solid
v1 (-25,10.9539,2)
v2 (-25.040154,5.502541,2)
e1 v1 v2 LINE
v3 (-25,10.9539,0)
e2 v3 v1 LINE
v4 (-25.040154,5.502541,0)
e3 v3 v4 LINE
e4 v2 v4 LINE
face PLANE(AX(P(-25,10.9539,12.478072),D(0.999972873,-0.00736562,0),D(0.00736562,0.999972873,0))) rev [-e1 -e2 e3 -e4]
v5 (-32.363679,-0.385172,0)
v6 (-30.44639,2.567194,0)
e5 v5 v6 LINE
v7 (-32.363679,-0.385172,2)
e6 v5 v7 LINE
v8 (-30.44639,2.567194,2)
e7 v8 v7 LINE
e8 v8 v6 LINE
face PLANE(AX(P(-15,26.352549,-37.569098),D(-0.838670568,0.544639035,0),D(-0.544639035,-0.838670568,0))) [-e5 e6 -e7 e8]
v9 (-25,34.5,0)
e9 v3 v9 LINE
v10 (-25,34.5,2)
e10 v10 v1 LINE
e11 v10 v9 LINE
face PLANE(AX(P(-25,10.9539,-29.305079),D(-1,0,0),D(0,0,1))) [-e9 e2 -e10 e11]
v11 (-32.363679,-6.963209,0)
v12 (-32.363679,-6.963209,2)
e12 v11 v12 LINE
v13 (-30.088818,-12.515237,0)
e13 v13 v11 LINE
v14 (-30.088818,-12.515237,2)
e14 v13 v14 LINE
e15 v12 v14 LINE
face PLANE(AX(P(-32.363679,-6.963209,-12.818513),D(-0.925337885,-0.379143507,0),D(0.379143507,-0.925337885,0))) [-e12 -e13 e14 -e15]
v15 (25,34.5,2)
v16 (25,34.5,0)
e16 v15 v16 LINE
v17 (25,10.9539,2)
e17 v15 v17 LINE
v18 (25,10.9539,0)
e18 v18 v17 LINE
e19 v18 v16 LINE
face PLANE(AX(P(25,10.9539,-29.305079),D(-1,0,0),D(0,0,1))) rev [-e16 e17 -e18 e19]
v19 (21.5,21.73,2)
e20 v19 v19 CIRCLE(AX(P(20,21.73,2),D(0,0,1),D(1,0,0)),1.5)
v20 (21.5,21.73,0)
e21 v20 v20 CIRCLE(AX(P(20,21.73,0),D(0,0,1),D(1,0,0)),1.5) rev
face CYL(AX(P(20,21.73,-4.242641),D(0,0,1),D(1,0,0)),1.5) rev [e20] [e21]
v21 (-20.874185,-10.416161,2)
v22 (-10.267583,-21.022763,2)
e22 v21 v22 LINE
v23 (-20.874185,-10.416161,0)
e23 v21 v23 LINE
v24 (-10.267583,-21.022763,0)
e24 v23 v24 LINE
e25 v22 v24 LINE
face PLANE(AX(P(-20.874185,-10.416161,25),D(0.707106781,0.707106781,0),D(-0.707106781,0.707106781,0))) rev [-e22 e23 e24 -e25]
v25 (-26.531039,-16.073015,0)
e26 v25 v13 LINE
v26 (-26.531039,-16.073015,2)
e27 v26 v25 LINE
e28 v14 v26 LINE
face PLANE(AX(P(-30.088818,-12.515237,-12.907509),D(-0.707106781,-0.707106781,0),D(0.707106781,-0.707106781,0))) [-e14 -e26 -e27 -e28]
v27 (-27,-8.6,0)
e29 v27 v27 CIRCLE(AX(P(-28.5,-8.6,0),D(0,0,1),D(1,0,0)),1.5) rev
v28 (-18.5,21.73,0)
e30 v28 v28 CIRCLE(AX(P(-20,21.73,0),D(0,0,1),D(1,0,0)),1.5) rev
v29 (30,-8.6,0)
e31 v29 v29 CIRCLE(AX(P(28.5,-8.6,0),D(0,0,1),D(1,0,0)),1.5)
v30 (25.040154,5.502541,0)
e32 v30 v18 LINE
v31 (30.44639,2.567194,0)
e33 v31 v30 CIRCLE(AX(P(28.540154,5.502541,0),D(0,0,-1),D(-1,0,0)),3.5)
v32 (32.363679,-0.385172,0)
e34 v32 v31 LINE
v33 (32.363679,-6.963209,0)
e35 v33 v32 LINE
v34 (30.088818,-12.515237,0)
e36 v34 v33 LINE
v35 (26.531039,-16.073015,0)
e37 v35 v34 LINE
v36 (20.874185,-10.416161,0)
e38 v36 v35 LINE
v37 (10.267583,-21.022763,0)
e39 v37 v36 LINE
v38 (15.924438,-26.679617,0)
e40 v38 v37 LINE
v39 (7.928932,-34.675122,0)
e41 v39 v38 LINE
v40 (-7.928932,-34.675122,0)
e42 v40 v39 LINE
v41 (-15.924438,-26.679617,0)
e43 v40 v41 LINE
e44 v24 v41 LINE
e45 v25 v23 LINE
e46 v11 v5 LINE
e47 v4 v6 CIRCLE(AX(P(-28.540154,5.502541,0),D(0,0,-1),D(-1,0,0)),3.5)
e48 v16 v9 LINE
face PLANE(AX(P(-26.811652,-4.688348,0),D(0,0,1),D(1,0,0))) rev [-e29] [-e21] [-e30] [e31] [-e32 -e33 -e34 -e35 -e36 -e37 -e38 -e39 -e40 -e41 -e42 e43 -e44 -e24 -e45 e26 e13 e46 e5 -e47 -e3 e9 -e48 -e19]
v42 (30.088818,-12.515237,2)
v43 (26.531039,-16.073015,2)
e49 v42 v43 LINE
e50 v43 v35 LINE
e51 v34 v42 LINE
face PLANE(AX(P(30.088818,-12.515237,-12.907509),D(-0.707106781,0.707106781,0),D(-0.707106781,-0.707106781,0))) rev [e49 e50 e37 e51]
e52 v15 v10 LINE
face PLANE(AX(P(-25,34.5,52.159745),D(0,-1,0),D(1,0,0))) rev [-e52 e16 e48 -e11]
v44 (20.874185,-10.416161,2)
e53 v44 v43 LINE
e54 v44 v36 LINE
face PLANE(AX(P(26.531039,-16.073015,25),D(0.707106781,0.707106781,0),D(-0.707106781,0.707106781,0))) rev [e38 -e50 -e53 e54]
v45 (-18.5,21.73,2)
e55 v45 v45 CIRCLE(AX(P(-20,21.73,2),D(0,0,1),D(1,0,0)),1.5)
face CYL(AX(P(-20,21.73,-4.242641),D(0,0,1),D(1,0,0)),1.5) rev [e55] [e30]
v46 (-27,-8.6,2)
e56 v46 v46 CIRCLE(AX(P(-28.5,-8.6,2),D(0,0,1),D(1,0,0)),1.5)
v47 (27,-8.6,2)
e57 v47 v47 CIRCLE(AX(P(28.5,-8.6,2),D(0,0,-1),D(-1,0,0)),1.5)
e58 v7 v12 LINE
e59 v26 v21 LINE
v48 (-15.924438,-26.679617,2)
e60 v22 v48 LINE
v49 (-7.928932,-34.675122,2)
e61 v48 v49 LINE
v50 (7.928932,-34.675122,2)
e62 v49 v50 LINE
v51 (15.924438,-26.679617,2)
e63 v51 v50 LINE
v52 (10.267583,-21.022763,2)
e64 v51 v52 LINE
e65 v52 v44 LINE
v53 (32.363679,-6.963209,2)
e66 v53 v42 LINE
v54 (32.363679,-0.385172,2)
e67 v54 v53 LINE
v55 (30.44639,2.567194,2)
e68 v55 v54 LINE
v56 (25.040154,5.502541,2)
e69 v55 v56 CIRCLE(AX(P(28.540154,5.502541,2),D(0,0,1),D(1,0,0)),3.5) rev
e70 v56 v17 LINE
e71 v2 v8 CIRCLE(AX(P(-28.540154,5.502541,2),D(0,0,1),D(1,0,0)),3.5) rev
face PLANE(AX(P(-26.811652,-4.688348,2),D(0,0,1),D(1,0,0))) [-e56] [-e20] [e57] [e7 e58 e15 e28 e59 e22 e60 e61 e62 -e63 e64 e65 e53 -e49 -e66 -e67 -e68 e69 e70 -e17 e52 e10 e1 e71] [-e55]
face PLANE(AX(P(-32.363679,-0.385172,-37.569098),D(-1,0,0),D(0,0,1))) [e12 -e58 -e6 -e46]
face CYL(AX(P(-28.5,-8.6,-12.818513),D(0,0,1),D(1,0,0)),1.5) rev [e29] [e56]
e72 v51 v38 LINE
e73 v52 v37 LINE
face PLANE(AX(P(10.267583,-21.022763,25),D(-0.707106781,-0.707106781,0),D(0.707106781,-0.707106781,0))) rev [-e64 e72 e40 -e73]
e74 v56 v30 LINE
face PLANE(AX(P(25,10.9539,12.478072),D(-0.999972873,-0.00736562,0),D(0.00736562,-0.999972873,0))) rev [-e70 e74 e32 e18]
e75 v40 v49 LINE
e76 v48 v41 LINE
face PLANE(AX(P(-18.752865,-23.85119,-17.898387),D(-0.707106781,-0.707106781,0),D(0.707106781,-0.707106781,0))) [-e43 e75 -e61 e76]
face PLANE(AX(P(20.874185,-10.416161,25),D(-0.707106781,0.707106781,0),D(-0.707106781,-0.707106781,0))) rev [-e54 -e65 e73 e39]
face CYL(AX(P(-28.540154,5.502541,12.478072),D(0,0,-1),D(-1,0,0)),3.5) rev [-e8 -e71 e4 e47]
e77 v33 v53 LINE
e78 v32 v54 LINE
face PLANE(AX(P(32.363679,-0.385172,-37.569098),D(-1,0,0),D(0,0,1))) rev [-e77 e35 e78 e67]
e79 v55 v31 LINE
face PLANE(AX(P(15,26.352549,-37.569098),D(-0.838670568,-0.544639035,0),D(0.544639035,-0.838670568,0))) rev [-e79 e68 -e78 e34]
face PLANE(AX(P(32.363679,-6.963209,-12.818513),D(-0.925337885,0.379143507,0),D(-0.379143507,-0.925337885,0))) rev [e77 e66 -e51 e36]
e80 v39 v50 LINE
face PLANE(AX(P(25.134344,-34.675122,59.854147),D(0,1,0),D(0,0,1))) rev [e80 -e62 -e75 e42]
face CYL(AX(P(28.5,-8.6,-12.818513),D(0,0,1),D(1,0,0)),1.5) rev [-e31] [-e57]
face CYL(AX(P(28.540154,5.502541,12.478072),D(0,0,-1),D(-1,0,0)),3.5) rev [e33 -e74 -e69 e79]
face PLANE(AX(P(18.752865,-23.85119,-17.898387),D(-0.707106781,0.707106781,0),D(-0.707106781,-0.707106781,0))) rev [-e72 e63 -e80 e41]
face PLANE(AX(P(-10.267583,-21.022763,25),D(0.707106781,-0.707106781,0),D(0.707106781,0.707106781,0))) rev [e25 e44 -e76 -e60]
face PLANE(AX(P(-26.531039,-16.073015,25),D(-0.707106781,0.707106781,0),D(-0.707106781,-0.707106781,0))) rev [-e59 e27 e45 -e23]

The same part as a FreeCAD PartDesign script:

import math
import FreeCAD as App
import Part
import Sketcher
Q = App.Units.Quantity


def edges_at(feature, points):
    """Names of the edges that pass closest to the given points."""
    edges = feature.Shape.Edges
    near = lambda p: min(range(len(edges)), key=lambda i: edges[i].distToShape(Part.Vertex(*p))[0])
    return sorted({f"Edge{near(p) + 1}" for p in points})

doc = App.newDocument("Part")
params = doc.addObject("Spreadsheet::Sheet", "Params")
for row, (alias, value) in enumerate([
    ("sketch1_width", "30 mm"),
    ("sketch1_height", "25 mm"),
    ("sketch1_height2", "10 mm"),
    ("sketch1_height3", "19 mm"),
    ("sketch1_length", "10 mm"),
    ("pad1_length", "2 mm"),
    ("sketch2_diameter", "3 mm"),
    ("sketch2_length", "6 mm"),
    ("pad2_length", "2 mm"),
    ("sketch3_width", "36 mm"),
    ("pad3_length", "2 mm"),
    ("fillet_radius", "3 mm"),
    ("sketch4_diameter", "3 mm"),
    ("pocket1_length", "2 mm"),
    ("sketch5_length", "6 mm"),
    ("pad4_length", "2 mm"),
    ("pad5_length", "2 mm"),
    ("sketch7_length", "7 mm"),
    ("pad6_length", "2 mm"),
    ("sketch8_length", "10 mm"),
    ("pad7_length", "2 mm"),
    ("sketch9_width", "10 mm"),
    ("pad8_length", "2 mm"),
    ("pocket2_length", "2 mm"),
    ("sketch11_diameter", "3 mm"),
    ("pocket3_length", "2 mm"),
    ("sketch12_length", "8 mm"),
    ("sketch12_length2", "15 mm"),
    ("pocket4_length", "2 mm"),
    ("sketch13_radius", "3.5 mm"),
    ("sketch13_length", "10 mm"),
    ("pocket5_length", "2 mm"),
    ("sketch14_width", "50 mm"),
    ("sketch14_height", "4 mm"),
    ("pocket6_length", "2 mm"),
], start=1):
    params.set(f"A{row}", alias)
    params.set(f"B{row}", "=" + value)
    params.setAlias(f"B{row}", alias)

body = doc.addObject("PartDesign::Body", "Body")

sketch1 = doc.addObject("Sketcher::SketchObject", "Sketch")
body.addObject(sketch1)
sketch1.AttachmentSupport = (doc.XY_Plane, [""])
sketch1.MapMode = "FlatFace"
sketch1.addGeometry([
    Part.LineSegment(App.Vector(-15, 38, 0), App.Vector(-15, 14, 0)),
    Part.LineSegment(App.Vector(-15, 14, 0), App.Vector(-27, -5, 0)),
    Part.LineSegment(App.Vector(-27, -5, 0), App.Vector(-15, -16, 0)),
    Part.LineSegment(App.Vector(-15, -16, 0), App.Vector(-15, -26, 0)),
    Part.LineSegment(App.Vector(-15, -26, 0), App.Vector(-8, -34, 0)),
    Part.LineSegment(App.Vector(-8, -34, 0), App.Vector(-8, -53, 0)),
    Part.LineSegment(App.Vector(-8, -53, 0), App.Vector(8, -53, 0)),
    Part.LineSegment(App.Vector(8, -53, 0), App.Vector(8, -34, 0)),
    Part.LineSegment(App.Vector(8, -34, 0), App.Vector(15, -26, 0)),
    Part.LineSegment(App.Vector(15, -26, 0), App.Vector(15, -16, 0)),
    Part.LineSegment(App.Vector(15, -16, 0), App.Vector(27, -5, 0)),
    Part.LineSegment(App.Vector(27, -5, 0), App.Vector(15, 14, 0)),
    Part.LineSegment(App.Vector(15, 14, 0), App.Vector(15, 38, 0)),
    Part.LineSegment(App.Vector(15, 38, 0), App.Vector(-15, 38, 0)),
], False)
sketch1.addConstraint([
    Sketcher.Constraint("Coincident", 0, 2, 1, 1),
    Sketcher.Constraint("Coincident", 1, 2, 2, 1),
    Sketcher.Constraint("Coincident", 2, 2, 3, 1),
    Sketcher.Constraint("Coincident", 3, 2, 4, 1),
    Sketcher.Constraint("Coincident", 4, 2, 5, 1),
    Sketcher.Constraint("Coincident", 5, 2, 6, 1),
    Sketcher.Constraint("Coincident", 6, 2, 7, 1),
    Sketcher.Constraint("Coincident", 7, 2, 8, 1),
    Sketcher.Constraint("Coincident", 8, 2, 9, 1),
    Sketcher.Constraint("Coincident", 9, 2, 10, 1),
    Sketcher.Constraint("Coincident", 10, 2, 11, 1),
    Sketcher.Constraint("Coincident", 11, 2, 12, 1),
    Sketcher.Constraint("Coincident", 12, 2, 13, 1),
    Sketcher.Constraint("Coincident", 13, 2, 0, 1),
    Sketcher.Constraint("Vertical", 0),
    Sketcher.Constraint("Vertical", 3),
    Sketcher.Constraint("Vertical", 5),
    Sketcher.Constraint("Horizontal", 6),
    Sketcher.Constraint("Vertical", 7),
    Sketcher.Constraint("Vertical", 9),
    Sketcher.Constraint("Vertical", 12),
    Sketcher.Constraint("Horizontal", 13),
    Sketcher.Constraint("Symmetric", 4, 2, 7, 2, -2),
    Sketcher.Constraint("Symmetric", 3, 2, 8, 2, -2),
    Sketcher.Constraint("Symmetric", 1, 2, 10, 2, -2),
    Sketcher.Constraint("Symmetric", 0, 2, 11, 2, -2),
    Sketcher.Constraint("Parallel", 2, 4),
    Sketcher.Constraint("Perpendicular", 4, 8),
    Sketcher.Constraint("Parallel", 8, 10),
    Sketcher.Constraint("Vertical", 0, 2, 2, 2),
    Sketcher.Constraint("DistanceX", 13, 2, 13, 1, 30.0),
    Sketcher.Constraint("DistanceY", 0, 2, 0, 1, 25.0),
    Sketcher.Constraint("DistanceY", 3, 2, 3, 1, 10.0),
    Sketcher.Constraint("DistanceY", 5, 2, 5, 1, 19.0),
    Sketcher.Constraint("Angle", 1, Q("-123 deg")),
    Sketcher.Constraint("Distance", 4, 10.0),
    Sketcher.Constraint("DistanceY", 2, 2, 0, 2, 30.0),
    Sketcher.Constraint("DistanceY", -1, 1, 0, 2, 13.5),
])
sketch1.setExpression("Constraints[30]", "Params.sketch1_width")
sketch1.setExpression("Constraints[31]", "Params.sketch1_height")
sketch1.setExpression("Constraints[32]", "Params.sketch1_height2")
sketch1.setExpression("Constraints[33]", "Params.sketch1_height3")
sketch1.setExpression("Constraints[35]", "Params.sketch1_length")
pad1 = doc.addObject("PartDesign::Pad", "Pad")
body.addObject(pad1)
pad1.Profile = sketch1
pad1.setExpression("Length", "Params.pad1_length")

sketch2 = doc.addObject("Sketcher::SketchObject", "Sketch001")
body.addObject(sketch2)
sketch2.AttachmentSupport = (doc.XY_Plane, [""])
sketch2.MapMode = "FlatFace"
sketch2.AttachmentOffset = App.Placement(App.Vector(0, 0, 2), App.Rotation())
sketch2.addGeometry([
    Part.LineSegment(App.Vector(-26.8, -4.7, 0), App.Vector(-32.4, -7, 0)),
    Part.LineSegment(App.Vector(-32.4, -7, 0), App.Vector(-30.1, -12.5, 0)),
    Part.LineSegment(App.Vector(-30.1, -12.5, 0), App.Vector(-22.2, -9.3, 0)),
    Part.LineSegment(App.Vector(-22.2, -9.3, 0), App.Vector(-26.8, -4.7, 0)),
    Part.Circle(App.Vector(-28.5, -8.6, 0), App.Vector(0, 0, 1), 1.5),
], False)
sketch2.addConstraint([
    Sketcher.Constraint("Coincident", 0, 2, 1, 1),
    Sketcher.Constraint("Coincident", 1, 2, 2, 1),
    Sketcher.Constraint("Coincident", 2, 2, 3, 1),
    Sketcher.Constraint("Coincident", 3, 2, 0, 1),
    Sketcher.Constraint("Perpendicular", 0, 1),
    Sketcher.Constraint("Perpendicular", 1, 2),
    Sketcher.Constraint("Equal", 0, 1),
    Sketcher.Constraint("Diameter", 4, 3.0),
    Sketcher.Constraint("Angle", 3, Q("135 deg")),
    Sketcher.Constraint("Distance", 0, 6.0),
    Sketcher.Constraint("DistanceX", 4, 3, -1, 1, 28.5),
    Sketcher.Constraint("DistanceY", 4, 3, -1, 1, 8.6),
    Sketcher.Constraint("DistanceX", 0, 2, -1, 1, 32.363679),
    Sketcher.Constraint("DistanceY", 0, 2, -1, 1, 6.963209),
    Sketcher.Constraint("DistanceX", 3, 2, -1, 1, 26.811652),
])
sketch2.setExpression("Constraints[7]", "Params.sketch2_diameter")
sketch2.setExpression("Constraints[9]", "Params.sketch2_length")
pad2 = doc.addObject("PartDesign::Pad", "Pad001")
body.addObject(pad2)
pad2.Profile = sketch2
pad2.setExpression("Length", "Params.pad2_length")
pad2.Reversed = True
doc.recompute()

mirrored = doc.addObject("PartDesign::Mirrored", "Mirrored")
body.addObject(mirrored)
mirrored.Originals = [pad2]
mirrored.MirrorPlane = (doc.YZ_Plane, [""])
body.Tip = mirrored

sketch3 = doc.addObject("Sketcher::SketchObject", "Sketch002")
body.addObject(sketch3)
sketch3.AttachmentSupport = (doc.XY_Plane, [""])
sketch3.MapMode = "FlatFace"
sketch3.AttachmentOffset = App.Placement(App.Vector(0, 0, 2), App.Rotation())
sketch3.addGeometry([
    Part.LineSegment(App.Vector(-8, -45, 0), App.Vector(-18, -55, 0)),
    Part.LineSegment(App.Vector(-18, -55, 0), App.Vector(18, -55, 0)),
    Part.LineSegment(App.Vector(18, -55, 0), App.Vector(8, -45, 0)),
    Part.LineSegment(App.Vector(8, -45, 0), App.Vector(-8, -45, 0)),
], False)
sketch3.addConstraint([
    Sketcher.Constraint("Coincident", 0, 2, 1, 1),
    Sketcher.Constraint("Coincident", 1, 2, 2, 1),
    Sketcher.Constraint("Coincident", 2, 2, 3, 1),
    Sketcher.Constraint("Coincident", 3, 2, 0, 1),
    Sketcher.Constraint("Horizontal", 1),
    Sketcher.Constraint("Horizontal", 3),
    Sketcher.Constraint("Perpendicular", 0, 2),
    Sketcher.Constraint("Equal", 0, 2),
    Sketcher.Constraint("DistanceX", 1, 1, 1, 2, 36.0),
    Sketcher.Constraint("DistanceX", 0, 2, -1, 1, 18.0),
    Sketcher.Constraint("Distance", 0, 14.242641),
    Sketcher.Constraint("DistanceY", 0, 2, -1, 1, 54.642136),
])
sketch3.setExpression("Constraints[8]", "Params.sketch3_width")
pad3 = doc.addObject("PartDesign::Pad", "Pad002")
body.addObject(pad3)
pad3.Profile = sketch3
pad3.setExpression("Length", "Params.pad3_length")
pad3.Reversed = True
doc.recompute()

fillet = doc.addObject("PartDesign::Fillet", "Fillet")
body.addObject(fillet)
fillet.Base = (pad3, edges_at(pad3, [(18, -54.642, 1), (-18, -54.642, 1)]))
fillet.setExpression("Radius", "Params.fillet_radius")

sketch4 = doc.addObject("Sketcher::SketchObject", "Sketch003")
body.addObject(sketch4)
sketch4.AttachmentSupport = (doc.XY_Plane, [""])
sketch4.MapMode = "FlatFace"
sketch4.AttachmentOffset = App.Placement(App.Vector(0, 0, 2), App.Rotation())
sketch4.addGeometry(Part.Circle(App.Vector(-11, -52, 0), App.Vector(0, 0, 1), 1.5), False)
sketch4.addConstraint([
    Sketcher.Constraint("Diameter", 0, 3.0),
    Sketcher.Constraint("DistanceX", 0, 3, -1, 1, 11.0),
    Sketcher.Constraint("DistanceY", 0, 3, -1, 1, 52.002136),
])
sketch4.setExpression("Constraints[0]", "Params.sketch4_diameter")
pocket1 = doc.addObject("PartDesign::Pocket", "Pocket")
body.addObject(pocket1)
pocket1.Profile = sketch4
pocket1.setExpression("Length", "Params.pocket1_length")
doc.recompute()

mirrored2 = doc.addObject("PartDesign::Mirrored", "Mirrored001")
body.addObject(mirrored2)
mirrored2.Originals = [pocket1]
mirrored2.MirrorPlane = (doc.YZ_Plane, [""])
body.Tip = mirrored2

sketch5 = doc.addObject("Sketcher::SketchObject", "Sketch004")
body.addObject(sketch5)
sketch5.AttachmentSupport = (doc.XY_Plane, [""])
sketch5.MapMode = "FlatFace"
sketch5.AttachmentOffset = App.Placement(App.Vector(0, 0, 2), App.Rotation())
sketch5.addGeometry([
    Part.LineSegment(App.Vector(-32, -7, 0), App.Vector(-27, -5, 0)),
    Part.LineSegment(App.Vector(-27, -5, 0), App.Vector(-15, 14, 0)),
    Part.LineSegment(App.Vector(-15, 14, 0), App.Vector(-15, 26, 0)),
    Part.LineSegment(App.Vector(-15, 26, 0), App.Vector(-32, 0, 0)),
    Part.LineSegment(App.Vector(-32, 0, 0), App.Vector(-32, -7, 0)),
], False)
sketch5.addConstraint([
    Sketcher.Constraint("Coincident", 0, 2, 1, 1),
    Sketcher.Constraint("Coincident", 1, 2, 2, 1),
    Sketcher.Constraint("Coincident", 2, 2, 3, 1),
    Sketcher.Constraint("Coincident", 3, 2, 4, 1),
    Sketcher.Constraint("Coincident", 4, 2, 0, 1),
    Sketcher.Constraint("Vertical", 2),
    Sketcher.Constraint("Vertical", 4),
    Sketcher.Constraint("Parallel", 1, 3),
    Sketcher.Constraint("Angle", 1, Q("57 deg")),
    Sketcher.Constraint("Distance", 0, 6.0),
    Sketcher.Constraint("DistanceX", 1, 2, -1, 1, 15.0),
    Sketcher.Constraint("DistanceY", -1, 1, 1, 2, 13.5),
    Sketcher.Constraint("DistanceY", 2, 1, 2, 2, 12.852549),
    Sketcher.Constraint("Distance", 1, 21.687119),
    Sketcher.Constraint("DistanceY", 4, 2, 4, 1, 6.578038),
])
sketch5.setExpression("Constraints[9]", "Params.sketch5_length")
pad4 = doc.addObject("PartDesign::Pad", "Pad003")
body.addObject(pad4)
pad4.Profile = sketch5
pad4.setExpression("Length", "Params.pad4_length")
pad4.Reversed = True

sketch6 = doc.addObject("Sketcher::SketchObject", "Sketch005")
body.addObject(sketch6)
sketch6.AttachmentSupport = (doc.XY_Plane, [""])
sketch6.MapMode = "FlatFace"
sketch6.AttachmentOffset = App.Placement(App.Vector(0, 0, 2), App.Rotation())
sketch6.addGeometry([
    Part.LineSegment(App.Vector(-22.2, -9.3, 0), App.Vector(-25.2, -10.5, 0)),
    Part.LineSegment(App.Vector(-25.2, -10.5, 0), App.Vector(-15, -20.7, 0)),
    Part.LineSegment(App.Vector(-15, -20.7, 0), App.Vector(-15, -16.5, 0)),
    Part.LineSegment(App.Vector(-15, -16.5, 0), App.Vector(-22.2, -9.3, 0)),
], False)
sketch6.addConstraint([
    Sketcher.Constraint("Coincident", 0, 2, 1, 1),
    Sketcher.Constraint("Coincident", 1, 2, 2, 1),
    Sketcher.Constraint("Coincident", 2, 2, 3, 1),
    Sketcher.Constraint("Coincident", 3, 2, 0, 1),
    Sketcher.Constraint("Vertical", 2),
    Sketcher.Constraint("Parallel", 1, 3),
    Sketcher.Constraint("Angle", 1, Q("-45 deg")),
    Sketcher.Constraint("DistanceX", 1, 2, -1, 1, 15.0),
    Sketcher.Constraint("DistanceY", 2, 2, -1, 1, 16.5),
    Sketcher.Constraint("Distance", 1, 14.4556),
    Sketcher.Constraint("DistanceY", 2, 1, 2, 2, 4.242641),
    Sketcher.Constraint("Distance", 0, 3.252358),
])
pad5 = doc.addObject("PartDesign::Pad", "Pad004")
body.addObject(pad5)
pad5.Profile = sketch6
pad5.setExpression("Length", "Params.pad5_length")
pad5.Reversed = True

sketch7 = doc.addObject("Sketcher::SketchObject", "Sketch006")
body.addObject(sketch7)
sketch7.AttachmentSupport = (doc.XY_Plane, [""])
sketch7.MapMode = "FlatFace"
sketch7.AttachmentOffset = App.Placement(App.Vector(0, 0, 2), App.Rotation())
sketch7.addGeometry([
    Part.LineSegment(App.Vector(-25.2, -10.5, 0), App.Vector(-30.1, -12.5, 0)),
    Part.LineSegment(App.Vector(-30.1, -12.5, 0), App.Vector(-23.7, -18.9, 0)),
    Part.LineSegment(App.Vector(-23.7, -18.9, 0), App.Vector(-20.3, -15.5, 0)),
    Part.LineSegment(App.Vector(-20.3, -15.5, 0), App.Vector(-25.2, -10.5, 0)),
], False)
sketch7.addConstraint([
    Sketcher.Constraint("Coincident", 0, 2, 1, 1),
    Sketcher.Constraint("Coincident", 1, 2, 2, 1),
    Sketcher.Constraint("Coincident", 2, 2, 3, 1),
    Sketcher.Constraint("Coincident", 3, 2, 0, 1),
    Sketcher.Constraint("Perpendicular", 1, 2),
    Sketcher.Constraint("Perpendicular", 2, 3),
    Sketcher.Constraint("Angle", 1, Q("-45 deg")),
    Sketcher.Constraint("Distance", 3, 7.0),
    Sketcher.Constraint("DistanceY", 2, 2, 0, 2, 2.955499),
    Sketcher.Constraint("Distance", 0, 5.259879),
    Sketcher.Constraint("DistanceX", 0, 2, -1, 1, 30.088818),
    Sketcher.Constraint("DistanceY", 0, 2, -1, 1, 12.515237),
])
sketch7.setExpression("Constraints[7]", "Params.sketch7_length")
pad6 = doc.addObject("PartDesign::Pad", "Pad005")
body.addObject(pad6)
pad6.Profile = sketch7
pad6.setExpression("Length", "Params.pad6_length")
pad6.Reversed = True

sketch8 = doc.addObject("Sketcher::SketchObject", "Sketch007")
body.addObject(sketch8)
sketch8.AttachmentSupport = (doc.XY_Plane, [""])
sketch8.MapMode = "FlatFace"
sketch8.AttachmentOffset = App.Placement(App.Vector(0, 0, 2), App.Rotation())
sketch8.addGeometry([
    Part.LineSegment(App.Vector(-15.32, -20.42, 0), App.Vector(-18.75, -23.85, 0)),
    Part.LineSegment(App.Vector(-18.75, -23.85, 0), App.Vector(-7.93, -34.68, 0)),
    Part.LineSegment(App.Vector(-7.93, -34.68, 0), App.Vector(-7.93, -33.57, 0)),
    Part.LineSegment(App.Vector(-7.93, -33.57, 0), App.Vector(-15, -26.5, 0)),
    Part.LineSegment(App.Vector(-15, -26.5, 0), App.Vector(-15, -20.74, 0)),
    Part.LineSegment(App.Vector(-15, -20.74, 0), App.Vector(-15.32, -20.42, 0)),
], False)
sketch8.addConstraint([
    Sketcher.Constraint("Coincident", 0, 2, 1, 1),
    Sketcher.Constraint("Coincident", 1, 2, 2, 1),
    Sketcher.Constraint("Coincident", 2, 2, 3, 1),
    Sketcher.Constraint("Coincident", 3, 2, 4, 1),
    Sketcher.Constraint("Coincident", 4, 2, 5, 1),
    Sketcher.Constraint("Coincident", 5, 2, 0, 1),
    Sketcher.Constraint("Vertical", 2),
    Sketcher.Constraint("Vertical", 4),
    Sketcher.Constraint("Perpendicular", 0, 1),
    Sketcher.Constraint("Parallel", 1, 3),
    Sketcher.Constraint("Parallel", 3, 5),
    Sketcher.Constraint("Angle", 0, Q("-135 deg")),
    Sketcher.Constraint("Distance", 3, 10.0),
    Sketcher.Constraint("DistanceX", 3, 2, -1, 1, 15.0),
    Sketcher.Constraint("DistanceY", 3, 2, -1, 1, 26.5),
    Sketcher.Constraint("Distance", 5, 0.4556),
    Sketcher.Constraint("DistanceY", 4, 1, 4, 2, 5.757359),
    Sketcher.Constraint("DistanceY", 2, 1, 2, 2, 1.104055),
])
sketch8.setExpression("Constraints[12]", "Params.sketch8_length")
pad7 = doc.addObject("PartDesign::Pad", "Pad006")
body.addObject(pad7)
pad7.Profile = sketch8
pad7.setExpression("Length", "Params.pad7_length")
pad7.Reversed = True

sketch9 = doc.addObject("Sketcher::SketchObject", "Sketch008")
body.addObject(sketch9)
sketch9.AttachmentSupport = (doc.XY_Plane, [""])
sketch9.MapMode = "FlatFace"
sketch9.AttachmentOffset = App.Placement(App.Vector(0, 0, 2), App.Rotation())
sketch9.addGeometry([
    Part.LineSegment(App.Vector(-25, 38, 0), App.Vector(-25, 11, 0)),
    Part.LineSegment(App.Vector(-25, 11, 0), App.Vector(-15, 26, 0)),
    Part.LineSegment(App.Vector(-15, 26, 0), App.Vector(-15, 38, 0)),
    Part.LineSegment(App.Vector(-15, 38, 0), App.Vector(-25, 38, 0)),
], False)
sketch9.addConstraint([
    Sketcher.Constraint("Coincident", 0, 2, 1, 1),
    Sketcher.Constraint("Coincident", 1, 2, 2, 1),
    Sketcher.Constraint("Coincident", 2, 2, 3, 1),
    Sketcher.Constraint("Coincident", 3, 2, 0, 1),
    Sketcher.Constraint("Vertical", 0),
    Sketcher.Constraint("Vertical", 2),
    Sketcher.Constraint("Horizontal", 3),
    Sketcher.Constraint("DistanceX", 3, 2, 3, 1, 10.0),
    Sketcher.Constraint("Angle", 1, Q("57 deg")),
    Sketcher.Constraint("DistanceX", 0, 2, -1, 1, 25.0),
    Sketcher.Constraint("DistanceY", -1, 1, 2, 2, 38.5),
    Sketcher.Constraint("DistanceY", 0, 2, 0, 1, 27.5461),
])
sketch9.setExpression("Constraints[7]", "Params.sketch9_width")
pad8 = doc.addObject("PartDesign::Pad", "Pad007")
body.addObject(pad8)
pad8.Profile = sketch9
pad8.setExpression("Length", "Params.pad8_length")
pad8.Reversed = True
doc.recompute()

mirrored3 = doc.addObject("PartDesign::Mirrored", "Mirrored002")
body.addObject(mirrored3)
mirrored3.Originals = [pad4, pad5, pad6, pad7]
mirrored3.MirrorPlane = (doc.YZ_Plane, [""])
body.Tip = mirrored3
doc.recompute()

mirrored4 = doc.addObject("PartDesign::Mirrored", "Mirrored003")
body.addObject(mirrored4)
mirrored4.Originals = [pad8]
mirrored4.MirrorPlane = (doc.YZ_Plane, [""])
body.Tip = mirrored4

sketch10 = doc.addObject("Sketcher::SketchObject", "Sketch009")
body.addObject(sketch10)
sketch10.AttachmentSupport = (doc.XY_Plane, [""])
sketch10.MapMode = "FlatFace"
sketch10.addGeometry([
    Part.LineSegment(App.Vector(25, -35, 0), App.Vector(25, -59, 0)),
    Part.LineSegment(App.Vector(25, -59, 0), App.Vector(-27, -59, 0)),
    Part.LineSegment(App.Vector(-27, -59, 0), App.Vector(-27, -35, 0)),
    Part.LineSegment(App.Vector(-27, -35, 0), App.Vector(25, -35, 0)),
], False)
sketch10.addConstraint([
    Sketcher.Constraint("Coincident", 0, 2, 1, 1),
    Sketcher.Constraint("Coincident", 1, 2, 2, 1),
    Sketcher.Constraint("Coincident", 2, 2, 3, 1),
    Sketcher.Constraint("Coincident", 3, 2, 0, 1),
    Sketcher.Constraint("Vertical", 0),
    Sketcher.Constraint("Horizontal", 1),
    Sketcher.Constraint("Vertical", 2),
    Sketcher.Constraint("Horizontal", 3),
    Sketcher.Constraint("DistanceX", 1, 2, 1, 1, 52.444821),
    Sketcher.Constraint("DistanceY", 0, 2, 0, 1, 24.426279),
    Sketcher.Constraint("DistanceY", 0, 2, -1, 1, 59.101402),
    Sketcher.Constraint("DistanceX", -1, 1, 0, 2, 25.134344),
])
pocket2 = doc.addObject("PartDesign::Pocket", "Pocket001")
body.addObject(pocket2)
pocket2.Profile = sketch10
pocket2.setExpression("Length", "Params.pocket2_length")
pocket2.Reversed = True

sketch11 = doc.addObject("Sketcher::SketchObject", "Sketch010")
body.addObject(sketch11)
sketch11.AttachmentSupport = (doc.XY_Plane, [""])
sketch11.MapMode = "FlatFace"
sketch11.AttachmentOffset = App.Placement(App.Vector(0, 0, 2), App.Rotation())
sketch11.addGeometry([
    Part.Circle(App.Vector(-20, 21.7, 0), App.Vector(0, 0, 1), 1.5),
    Part.Circle(App.Vector(20, 21.7, 0), App.Vector(0, 0, 1), 1.5),
], False)
sketch11.addConstraint([
    Sketcher.Constraint("Equal", 0, 1),
    Sketcher.Constraint("Symmetric", 0, 3, 1, 3, -2),
    Sketcher.Constraint("Diameter", 0, 3.0),
    Sketcher.Constraint("DistanceX", 0, 3, -1, 1, 20.0),
    Sketcher.Constraint("DistanceY", -1, 1, 0, 3, 21.73),
])
sketch11.setExpression("Constraints[2]", "Params.sketch11_diameter")
pocket3 = doc.addObject("PartDesign::Pocket", "Pocket002")
body.addObject(pocket3)
pocket3.Profile = sketch11
pocket3.setExpression("Length", "Params.pocket3_length")

sketch12 = doc.addObject("Sketcher::SketchObject", "Sketch011")
body.addObject(sketch12)
sketch12.AttachmentSupport = (doc.XY_Plane, [""])
sketch12.MapMode = "FlatFace"
sketch12.addGeometry([
    Part.LineSegment(App.Vector(-27, -16, 0), App.Vector(-21, -10, 0)),
    Part.LineSegment(App.Vector(-21, -10, 0), App.Vector(-10, -21, 0)),
    Part.LineSegment(App.Vector(-10, -21, 0), App.Vector(-16, -27, 0)),
    Part.LineSegment(App.Vector(-16, -27, 0), App.Vector(-27, -16, 0)),
    Part.LineSegment(App.Vector(21, -10, 0), App.Vector(27, -16, 0)),
    Part.LineSegment(App.Vector(27, -16, 0), App.Vector(16, -27, 0)),
    Part.LineSegment(App.Vector(16, -27, 0), App.Vector(10, -21, 0)),
    Part.LineSegment(App.Vector(10, -21, 0), App.Vector(21, -10, 0)),
], False)
sketch12.addConstraint([
    Sketcher.Constraint("Coincident", 0, 2, 1, 1),
    Sketcher.Constraint("Coincident", 1, 2, 2, 1),
    Sketcher.Constraint("Coincident", 2, 2, 3, 1),
    Sketcher.Constraint("Coincident", 3, 2, 0, 1),
    Sketcher.Constraint("Coincident", 4, 2, 5, 1),
    Sketcher.Constraint("Coincident", 5, 2, 6, 1),
    Sketcher.Constraint("Coincident", 6, 2, 7, 1),
    Sketcher.Constraint("Coincident", 7, 2, 4, 1),
    Sketcher.Constraint("Symmetric", 3, 2, 4, 2, -2),
    Sketcher.Constraint("Symmetric", 2, 2, 5, 2, -2),
    Sketcher.Constraint("Symmetric", 1, 2, 6, 2, -2),
    Sketcher.Constraint("Symmetric", 0, 2, 7, 2, -2),
    Sketcher.Constraint("Perpendicular", 0, 1),
    Sketcher.Constraint("Perpendicular", 1, 2),
    Sketcher.Constraint("Perpendicular", 2, 3),
    Sketcher.Constraint("Parallel", 3, 4),
    Sketcher.Constraint("Distance", 0, 8.0),
    Sketcher.Constraint("Distance", 1, 15.0),
    Sketcher.Constraint("DistanceY", 0, 2, -1, 1, 10.416161),
    Sketcher.Constraint("DistanceX", 3, 2, -1, 1, 26.531039),
])
sketch12.setExpression("Constraints[16]", "Params.sketch12_length")
sketch12.setExpression("Constraints[17]", "Params.sketch12_length2")
pocket4 = doc.addObject("PartDesign::Pocket", "Pocket003")
body.addObject(pocket4)
pocket4.Profile = sketch12
pocket4.setExpression("Length", "Params.pocket4_length")
pocket4.Reversed = True

sketch13 = doc.addObject("Sketcher::SketchObject", "Sketch012")
body.addObject(sketch13)
sketch13.AttachmentSupport = (doc.XY_Plane, [""])
sketch13.MapMode = "FlatFace"
sketch13.addGeometry([
    Part.LineSegment(App.Vector(25, 5.5, 0), App.Vector(25, 11, 0)),
    Part.LineSegment(App.Vector(25, 11, 0), App.Vector(30.4, 2.6, 0)),
    Part.ArcOfCircle(Part.Circle(App.Vector(28.5, 5.5, 0), App.Vector(0, 0, 1), 3.5), math.radians(180), math.radians(303)),
    Part.LineSegment(App.Vector(-25, 11, 0), App.Vector(-25, 5.5, 0)),
    Part.ArcOfCircle(Part.Circle(App.Vector(-28.5, 5.5, 0), App.Vector(0, 0, 1), 3.5), math.radians(-123), math.radians(0)),
    Part.LineSegment(App.Vector(-30.4, 2.6, 0), App.Vector(-25, 11, 0)),
], False)
sketch13.addConstraint([
    Sketcher.Constraint("Coincident", 0, 2, 1, 1),
    Sketcher.Constraint("Coincident", 1, 2, 2, 2),
    Sketcher.Constraint("Coincident", 2, 1, 0, 1),
    Sketcher.Constraint("Coincident", 3, 2, 4, 2),
    Sketcher.Constraint("Coincident", 4, 1, 5, 1),
    Sketcher.Constraint("Coincident", 5, 2, 3, 1),
    Sketcher.Constraint("Equal", 2, 4),
    Sketcher.Constraint("Symmetric", 2, 3, 4, 3, -2),
    Sketcher.Constraint("Symmetric", 0, 2, 5, 2, -2),
    Sketcher.Constraint("Horizontal", 4, 3, 2, 1),
    Sketcher.Constraint("Horizontal", 2, 1, 3, 2),
    Sketcher.Constraint("Horizontal", 1, 2, 4, 1),
    Sketcher.Constraint("Radius", 2, 3.5),
    Sketcher.Constraint("Angle", 1, Q("-57 deg")),
    Sketcher.Constraint("Distance", 1, 10.0),
    Sketcher.Constraint("DistanceX", -1, 1, 0, 2, 25.0),
    Sketcher.Constraint("DistanceY", -1, 1, 0, 2, 10.9539),
    Sketcher.Constraint("DistanceY", -1, 1, 2, 3, 5.502541),
])
sketch13.setExpression("Constraints[12]", "Params.sketch13_radius")
sketch13.setExpression("Constraints[14]", "Params.sketch13_length")
pocket5 = doc.addObject("PartDesign::Pocket", "Pocket004")
body.addObject(pocket5)
pocket5.Profile = sketch13
pocket5.setExpression("Length", "Params.pocket5_length")
pocket5.Reversed = True

sketch14 = doc.addObject("Sketcher::SketchObject", "Sketch013")
body.addObject(sketch14)
sketch14.AttachmentSupport = (doc.XY_Plane, [""])
sketch14.MapMode = "FlatFace"
sketch14.addGeometry([
    Part.LineSegment(App.Vector(25, 38.5, 0), App.Vector(25, 34.5, 0)),
    Part.LineSegment(App.Vector(25, 34.5, 0), App.Vector(-25, 34.5, 0)),
    Part.LineSegment(App.Vector(-25, 34.5, 0), App.Vector(-25, 38.5, 0)),
    Part.LineSegment(App.Vector(-25, 38.5, 0), App.Vector(25, 38.5, 0)),
], False)
sketch14.addConstraint([
    Sketcher.Constraint("Coincident", 0, 2, 1, 1),
    Sketcher.Constraint("Coincident", 1, 2, 2, 1),
    Sketcher.Constraint("Coincident", 2, 2, 3, 1),
    Sketcher.Constraint("Coincident", 3, 2, 0, 1),
    Sketcher.Constraint("Vertical", 0),
    Sketcher.Constraint("Horizontal", 1),
    Sketcher.Constraint("Vertical", 2),
    Sketcher.Constraint("Horizontal", 3),
    Sketcher.Constraint("DistanceX", 1, 2, 1, 1, 50.0),
    Sketcher.Constraint("DistanceY", 0, 2, 0, 1, 4.0),
    Sketcher.Constraint("DistanceX", -1, 1, 0, 2, 25.0),
    Sketcher.Constraint("DistanceY", -1, 1, 0, 2, 34.5),
])
sketch14.setExpression("Constraints[8]", "Params.sketch14_width")
sketch14.setExpression("Constraints[9]", "Params.sketch14_height")
pocket6 = doc.addObject("PartDesign::Pocket", "Pocket005")
body.addObject(pocket6)
pocket6.Profile = sketch14
pocket6.setExpression("Length", "Params.pocket6_length")
pocket6.Reversed = True

doc.recompute()
